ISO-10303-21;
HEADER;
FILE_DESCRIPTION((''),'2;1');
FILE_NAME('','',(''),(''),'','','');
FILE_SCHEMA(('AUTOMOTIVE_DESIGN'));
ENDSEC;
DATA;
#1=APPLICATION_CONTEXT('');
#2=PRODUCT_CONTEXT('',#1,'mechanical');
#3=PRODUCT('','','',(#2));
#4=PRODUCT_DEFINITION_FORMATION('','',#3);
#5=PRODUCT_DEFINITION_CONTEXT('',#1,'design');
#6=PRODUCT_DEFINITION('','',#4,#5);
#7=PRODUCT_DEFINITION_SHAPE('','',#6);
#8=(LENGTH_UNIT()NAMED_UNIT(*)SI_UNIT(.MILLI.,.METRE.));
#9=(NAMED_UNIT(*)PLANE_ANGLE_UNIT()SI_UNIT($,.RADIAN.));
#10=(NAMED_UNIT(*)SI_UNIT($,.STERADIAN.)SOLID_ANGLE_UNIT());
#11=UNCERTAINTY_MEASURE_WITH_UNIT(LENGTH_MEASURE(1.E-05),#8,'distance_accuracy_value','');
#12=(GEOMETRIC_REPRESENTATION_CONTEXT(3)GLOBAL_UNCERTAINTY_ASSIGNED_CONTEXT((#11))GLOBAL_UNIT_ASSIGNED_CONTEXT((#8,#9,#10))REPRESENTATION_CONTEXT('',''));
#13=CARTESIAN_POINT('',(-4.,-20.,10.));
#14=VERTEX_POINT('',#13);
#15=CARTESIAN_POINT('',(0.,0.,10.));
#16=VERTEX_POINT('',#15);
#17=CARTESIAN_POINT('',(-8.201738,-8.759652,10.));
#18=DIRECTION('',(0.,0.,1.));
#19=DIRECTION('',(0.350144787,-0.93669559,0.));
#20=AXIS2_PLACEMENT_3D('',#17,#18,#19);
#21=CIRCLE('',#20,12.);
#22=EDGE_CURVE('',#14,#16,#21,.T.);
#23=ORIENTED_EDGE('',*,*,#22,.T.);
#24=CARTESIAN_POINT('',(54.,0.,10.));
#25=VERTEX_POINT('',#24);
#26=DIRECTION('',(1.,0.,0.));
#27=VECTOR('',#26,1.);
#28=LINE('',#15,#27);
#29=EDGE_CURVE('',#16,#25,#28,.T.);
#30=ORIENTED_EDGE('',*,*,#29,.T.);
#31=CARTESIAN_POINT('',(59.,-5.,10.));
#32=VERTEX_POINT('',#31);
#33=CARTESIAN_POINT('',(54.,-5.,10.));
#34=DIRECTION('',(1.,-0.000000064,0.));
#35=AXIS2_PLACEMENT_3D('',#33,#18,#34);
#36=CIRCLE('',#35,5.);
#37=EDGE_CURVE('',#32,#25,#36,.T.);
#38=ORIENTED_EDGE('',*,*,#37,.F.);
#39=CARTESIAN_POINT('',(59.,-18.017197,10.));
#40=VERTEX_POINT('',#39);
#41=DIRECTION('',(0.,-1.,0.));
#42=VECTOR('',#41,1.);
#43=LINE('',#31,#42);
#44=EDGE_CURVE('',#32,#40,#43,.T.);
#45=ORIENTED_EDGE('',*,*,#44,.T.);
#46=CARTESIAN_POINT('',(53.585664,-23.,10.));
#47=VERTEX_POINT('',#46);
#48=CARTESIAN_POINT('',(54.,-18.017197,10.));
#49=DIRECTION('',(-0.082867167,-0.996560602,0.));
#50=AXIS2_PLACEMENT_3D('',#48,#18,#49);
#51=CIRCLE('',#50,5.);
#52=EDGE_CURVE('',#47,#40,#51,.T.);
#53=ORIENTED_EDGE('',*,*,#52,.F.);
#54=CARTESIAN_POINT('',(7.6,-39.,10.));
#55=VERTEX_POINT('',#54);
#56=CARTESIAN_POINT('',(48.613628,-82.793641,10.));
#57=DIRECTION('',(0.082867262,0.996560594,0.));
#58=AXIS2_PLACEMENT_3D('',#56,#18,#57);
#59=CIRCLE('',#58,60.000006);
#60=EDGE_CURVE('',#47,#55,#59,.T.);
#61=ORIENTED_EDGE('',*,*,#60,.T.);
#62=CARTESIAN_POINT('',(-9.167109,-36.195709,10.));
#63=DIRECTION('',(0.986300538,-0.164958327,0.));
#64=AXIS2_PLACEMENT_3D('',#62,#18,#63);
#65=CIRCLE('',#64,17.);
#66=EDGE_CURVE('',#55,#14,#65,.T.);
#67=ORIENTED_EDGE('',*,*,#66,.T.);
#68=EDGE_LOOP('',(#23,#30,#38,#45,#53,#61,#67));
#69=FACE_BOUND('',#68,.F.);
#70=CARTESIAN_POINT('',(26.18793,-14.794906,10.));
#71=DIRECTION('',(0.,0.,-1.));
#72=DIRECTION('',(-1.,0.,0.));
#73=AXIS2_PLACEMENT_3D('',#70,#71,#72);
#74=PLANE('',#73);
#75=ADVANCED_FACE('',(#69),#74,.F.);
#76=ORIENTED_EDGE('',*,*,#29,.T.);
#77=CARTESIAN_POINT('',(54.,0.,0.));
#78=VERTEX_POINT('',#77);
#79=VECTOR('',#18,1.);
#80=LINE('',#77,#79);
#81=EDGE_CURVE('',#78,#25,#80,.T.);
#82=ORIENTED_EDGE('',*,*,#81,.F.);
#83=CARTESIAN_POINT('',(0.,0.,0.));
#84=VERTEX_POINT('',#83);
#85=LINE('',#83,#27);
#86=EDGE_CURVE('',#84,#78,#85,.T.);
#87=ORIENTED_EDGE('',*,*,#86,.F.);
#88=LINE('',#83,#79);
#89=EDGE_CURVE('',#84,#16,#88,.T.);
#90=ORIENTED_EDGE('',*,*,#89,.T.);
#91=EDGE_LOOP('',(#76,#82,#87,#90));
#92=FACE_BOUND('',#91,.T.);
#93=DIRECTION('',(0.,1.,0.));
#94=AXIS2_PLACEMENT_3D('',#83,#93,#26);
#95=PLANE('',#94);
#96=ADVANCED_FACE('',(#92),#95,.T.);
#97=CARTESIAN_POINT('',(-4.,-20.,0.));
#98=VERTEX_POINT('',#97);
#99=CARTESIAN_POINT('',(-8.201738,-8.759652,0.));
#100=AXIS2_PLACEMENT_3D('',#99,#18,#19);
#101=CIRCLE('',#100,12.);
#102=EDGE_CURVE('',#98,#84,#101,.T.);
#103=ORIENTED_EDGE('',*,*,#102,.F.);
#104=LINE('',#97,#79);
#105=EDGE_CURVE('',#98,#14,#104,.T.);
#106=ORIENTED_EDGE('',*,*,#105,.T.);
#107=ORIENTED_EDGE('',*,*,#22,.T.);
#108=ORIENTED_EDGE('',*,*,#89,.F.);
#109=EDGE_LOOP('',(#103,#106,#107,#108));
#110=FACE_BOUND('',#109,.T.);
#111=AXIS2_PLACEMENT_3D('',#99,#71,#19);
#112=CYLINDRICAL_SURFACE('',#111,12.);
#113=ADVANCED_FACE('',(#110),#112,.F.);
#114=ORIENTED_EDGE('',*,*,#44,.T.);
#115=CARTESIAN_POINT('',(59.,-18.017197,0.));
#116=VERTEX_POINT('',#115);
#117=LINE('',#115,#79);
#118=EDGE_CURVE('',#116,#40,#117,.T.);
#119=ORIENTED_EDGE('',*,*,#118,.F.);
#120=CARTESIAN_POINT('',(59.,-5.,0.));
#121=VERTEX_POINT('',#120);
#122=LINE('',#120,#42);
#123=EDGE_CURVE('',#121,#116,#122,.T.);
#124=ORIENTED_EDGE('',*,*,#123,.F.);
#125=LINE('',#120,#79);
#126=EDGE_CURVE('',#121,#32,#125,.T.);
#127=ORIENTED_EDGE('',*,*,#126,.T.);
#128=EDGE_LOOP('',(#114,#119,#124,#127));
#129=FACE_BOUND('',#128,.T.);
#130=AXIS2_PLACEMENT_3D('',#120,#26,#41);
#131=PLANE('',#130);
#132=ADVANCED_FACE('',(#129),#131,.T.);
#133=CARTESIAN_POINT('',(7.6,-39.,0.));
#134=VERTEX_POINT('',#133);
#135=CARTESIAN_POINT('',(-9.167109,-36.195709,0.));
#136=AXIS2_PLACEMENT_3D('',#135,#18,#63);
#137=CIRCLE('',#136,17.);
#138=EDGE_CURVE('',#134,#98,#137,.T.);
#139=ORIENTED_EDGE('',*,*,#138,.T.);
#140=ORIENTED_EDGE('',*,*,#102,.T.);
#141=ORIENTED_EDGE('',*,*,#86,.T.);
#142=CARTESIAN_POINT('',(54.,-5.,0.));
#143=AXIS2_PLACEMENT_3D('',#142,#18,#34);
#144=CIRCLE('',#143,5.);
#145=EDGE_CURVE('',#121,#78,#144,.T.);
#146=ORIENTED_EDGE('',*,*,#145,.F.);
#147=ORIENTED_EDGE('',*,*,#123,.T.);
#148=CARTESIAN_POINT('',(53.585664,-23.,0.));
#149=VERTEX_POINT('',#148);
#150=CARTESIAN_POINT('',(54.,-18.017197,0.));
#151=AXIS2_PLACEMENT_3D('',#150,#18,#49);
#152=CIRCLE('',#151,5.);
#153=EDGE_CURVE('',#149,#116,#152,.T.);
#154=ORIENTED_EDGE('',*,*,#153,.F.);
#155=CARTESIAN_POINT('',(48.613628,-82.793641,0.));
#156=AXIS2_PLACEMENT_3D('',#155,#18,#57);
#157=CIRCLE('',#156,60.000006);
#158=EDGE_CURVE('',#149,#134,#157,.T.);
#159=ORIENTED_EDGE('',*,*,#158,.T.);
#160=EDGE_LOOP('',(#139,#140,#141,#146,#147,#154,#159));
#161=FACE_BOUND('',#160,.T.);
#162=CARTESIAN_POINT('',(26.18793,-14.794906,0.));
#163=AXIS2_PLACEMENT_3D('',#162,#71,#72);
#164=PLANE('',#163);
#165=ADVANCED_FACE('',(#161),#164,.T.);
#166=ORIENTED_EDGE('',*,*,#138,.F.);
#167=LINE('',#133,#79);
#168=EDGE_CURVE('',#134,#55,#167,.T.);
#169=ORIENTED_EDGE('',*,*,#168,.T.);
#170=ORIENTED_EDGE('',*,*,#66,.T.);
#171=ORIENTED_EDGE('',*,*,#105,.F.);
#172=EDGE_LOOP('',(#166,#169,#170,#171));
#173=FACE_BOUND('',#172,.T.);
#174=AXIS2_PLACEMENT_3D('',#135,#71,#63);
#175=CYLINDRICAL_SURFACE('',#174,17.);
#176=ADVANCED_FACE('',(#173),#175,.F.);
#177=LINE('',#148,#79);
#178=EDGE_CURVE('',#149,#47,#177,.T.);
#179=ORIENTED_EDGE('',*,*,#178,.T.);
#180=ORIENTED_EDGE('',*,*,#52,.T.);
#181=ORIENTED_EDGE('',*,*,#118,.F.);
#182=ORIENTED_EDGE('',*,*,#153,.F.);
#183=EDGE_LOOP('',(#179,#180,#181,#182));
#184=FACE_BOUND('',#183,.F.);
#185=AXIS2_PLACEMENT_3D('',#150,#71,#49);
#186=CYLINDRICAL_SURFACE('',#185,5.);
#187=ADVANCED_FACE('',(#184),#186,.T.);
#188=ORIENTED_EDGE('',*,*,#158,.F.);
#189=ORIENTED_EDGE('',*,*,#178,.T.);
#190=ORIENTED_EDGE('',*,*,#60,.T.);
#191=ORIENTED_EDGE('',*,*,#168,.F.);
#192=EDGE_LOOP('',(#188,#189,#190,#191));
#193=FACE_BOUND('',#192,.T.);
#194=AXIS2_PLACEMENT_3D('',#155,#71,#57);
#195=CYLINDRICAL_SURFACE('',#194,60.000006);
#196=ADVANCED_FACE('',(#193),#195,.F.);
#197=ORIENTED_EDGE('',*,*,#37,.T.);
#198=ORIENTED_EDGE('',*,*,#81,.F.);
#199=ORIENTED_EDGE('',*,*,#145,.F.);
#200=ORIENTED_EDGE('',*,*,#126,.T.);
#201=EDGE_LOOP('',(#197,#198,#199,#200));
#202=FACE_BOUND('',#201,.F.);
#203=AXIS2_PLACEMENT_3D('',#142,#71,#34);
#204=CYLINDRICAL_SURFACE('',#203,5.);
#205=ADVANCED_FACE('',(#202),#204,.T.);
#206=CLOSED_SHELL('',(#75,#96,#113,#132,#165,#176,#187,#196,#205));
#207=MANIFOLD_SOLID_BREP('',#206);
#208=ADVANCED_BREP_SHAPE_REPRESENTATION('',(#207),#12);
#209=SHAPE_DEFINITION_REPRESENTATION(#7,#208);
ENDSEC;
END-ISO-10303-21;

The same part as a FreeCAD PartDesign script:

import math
import FreeCAD as App
import Part
import Sketcher

V = App.Vector

doc = App.newDocument("Part")
body = doc.addObject("PartDesign::Body", "Body")

# Sketch on XY plane
sketch1 = body.newObject("Sketcher::SketchObject", "Sketch")
sketch1.AttachmentSupport = (doc.getObject("XY_Plane"), [""])
sketch1.MapMode = "FlatFace"
sketch1.addGeometry([
    Part.LineSegment(V(54, 0, 0), V(0, 0, 0)),  # 0
    Part.ArcOfCircle(Part.Circle(V(-8.2, -8.8, 0), V(0, 0, 1), 12), math.radians(-70), math.radians(47)),  # 1
    Part.ArcOfCircle(Part.Circle(V(-9.2, -36.2, 0), V(0, 0, 1), 17), math.radians(-9), math.radians(72)),  # 2
    Part.ArcOfCircle(Part.Circle(V(48.6, -82.8, 0), V(0, 0, 1), 60), math.radians(85), math.radians(133)),  # 3
    Part.ArcOfCircle(Part.Circle(V(54, -18, 0), V(0, 0, 1), 5), math.radians(-95), math.radians(0)),  # 4
    Part.LineSegment(V(59, -18, 0), V(59, -5, 0)),  # 5
    Part.ArcOfCircle(Part.Circle(V(54, -5, 0), V(0, 0, 1), 5), math.radians(0), math.radians(90)),  # 6
], False)
sketch1.addConstraint([
    Sketcher.Constraint("Coincident", 0, 2, 1, 2),
    Sketcher.Constraint("Coincident", 1, 1, 2, 2),
    Sketcher.Constraint("Coincident", 2, 1, 3, 2),
    Sketcher.Constraint("Tangent", 3, 1, 4, 1),
    Sketcher.Constraint("Tangent", 4, 2, 5, 1),
    Sketcher.Constraint("Tangent", 5, 2, 6, 1),
    Sketcher.Constraint("Tangent", 6, 2, 0, 1),
    Sketcher.Constraint("Horizontal", 0),
    Sketcher.Constraint("Vertical", 5),
    Sketcher.Constraint("Coincident", 0, 2, -1, 1),
    Sketcher.Constraint("Equal", 4, 6),
    Sketcher.Constraint("Radius", 1, 12.0),
    Sketcher.Constraint("Radius", 2, 17.0),
    Sketcher.Constraint("Radius", 4, 5.0),
    Sketcher.Constraint("DistanceX", 0, 2, 0, 1, 54.0),
    Sketcher.Constraint("DistanceX", 1, 1, -1, 1, 4.0),
    Sketcher.Constraint("DistanceY", 1, 1, -1, 1, 20.0),
    Sketcher.Constraint("DistanceY", 2, 1, -1, 1, 39.0),
    Sketcher.Constraint("DistanceY", 3, 1, -1, 1, 23.0),
    Sketcher.Constraint("DistanceX", -1, 1, 2, 1, 7.6),
    Sketcher.Constraint("Radius", 3, 60.000006),
])
pad1 = body.newObject("PartDesign::Pad", "Pad")
pad1.Profile = sketch1
pad1.Length = 10

doc.recompute()
